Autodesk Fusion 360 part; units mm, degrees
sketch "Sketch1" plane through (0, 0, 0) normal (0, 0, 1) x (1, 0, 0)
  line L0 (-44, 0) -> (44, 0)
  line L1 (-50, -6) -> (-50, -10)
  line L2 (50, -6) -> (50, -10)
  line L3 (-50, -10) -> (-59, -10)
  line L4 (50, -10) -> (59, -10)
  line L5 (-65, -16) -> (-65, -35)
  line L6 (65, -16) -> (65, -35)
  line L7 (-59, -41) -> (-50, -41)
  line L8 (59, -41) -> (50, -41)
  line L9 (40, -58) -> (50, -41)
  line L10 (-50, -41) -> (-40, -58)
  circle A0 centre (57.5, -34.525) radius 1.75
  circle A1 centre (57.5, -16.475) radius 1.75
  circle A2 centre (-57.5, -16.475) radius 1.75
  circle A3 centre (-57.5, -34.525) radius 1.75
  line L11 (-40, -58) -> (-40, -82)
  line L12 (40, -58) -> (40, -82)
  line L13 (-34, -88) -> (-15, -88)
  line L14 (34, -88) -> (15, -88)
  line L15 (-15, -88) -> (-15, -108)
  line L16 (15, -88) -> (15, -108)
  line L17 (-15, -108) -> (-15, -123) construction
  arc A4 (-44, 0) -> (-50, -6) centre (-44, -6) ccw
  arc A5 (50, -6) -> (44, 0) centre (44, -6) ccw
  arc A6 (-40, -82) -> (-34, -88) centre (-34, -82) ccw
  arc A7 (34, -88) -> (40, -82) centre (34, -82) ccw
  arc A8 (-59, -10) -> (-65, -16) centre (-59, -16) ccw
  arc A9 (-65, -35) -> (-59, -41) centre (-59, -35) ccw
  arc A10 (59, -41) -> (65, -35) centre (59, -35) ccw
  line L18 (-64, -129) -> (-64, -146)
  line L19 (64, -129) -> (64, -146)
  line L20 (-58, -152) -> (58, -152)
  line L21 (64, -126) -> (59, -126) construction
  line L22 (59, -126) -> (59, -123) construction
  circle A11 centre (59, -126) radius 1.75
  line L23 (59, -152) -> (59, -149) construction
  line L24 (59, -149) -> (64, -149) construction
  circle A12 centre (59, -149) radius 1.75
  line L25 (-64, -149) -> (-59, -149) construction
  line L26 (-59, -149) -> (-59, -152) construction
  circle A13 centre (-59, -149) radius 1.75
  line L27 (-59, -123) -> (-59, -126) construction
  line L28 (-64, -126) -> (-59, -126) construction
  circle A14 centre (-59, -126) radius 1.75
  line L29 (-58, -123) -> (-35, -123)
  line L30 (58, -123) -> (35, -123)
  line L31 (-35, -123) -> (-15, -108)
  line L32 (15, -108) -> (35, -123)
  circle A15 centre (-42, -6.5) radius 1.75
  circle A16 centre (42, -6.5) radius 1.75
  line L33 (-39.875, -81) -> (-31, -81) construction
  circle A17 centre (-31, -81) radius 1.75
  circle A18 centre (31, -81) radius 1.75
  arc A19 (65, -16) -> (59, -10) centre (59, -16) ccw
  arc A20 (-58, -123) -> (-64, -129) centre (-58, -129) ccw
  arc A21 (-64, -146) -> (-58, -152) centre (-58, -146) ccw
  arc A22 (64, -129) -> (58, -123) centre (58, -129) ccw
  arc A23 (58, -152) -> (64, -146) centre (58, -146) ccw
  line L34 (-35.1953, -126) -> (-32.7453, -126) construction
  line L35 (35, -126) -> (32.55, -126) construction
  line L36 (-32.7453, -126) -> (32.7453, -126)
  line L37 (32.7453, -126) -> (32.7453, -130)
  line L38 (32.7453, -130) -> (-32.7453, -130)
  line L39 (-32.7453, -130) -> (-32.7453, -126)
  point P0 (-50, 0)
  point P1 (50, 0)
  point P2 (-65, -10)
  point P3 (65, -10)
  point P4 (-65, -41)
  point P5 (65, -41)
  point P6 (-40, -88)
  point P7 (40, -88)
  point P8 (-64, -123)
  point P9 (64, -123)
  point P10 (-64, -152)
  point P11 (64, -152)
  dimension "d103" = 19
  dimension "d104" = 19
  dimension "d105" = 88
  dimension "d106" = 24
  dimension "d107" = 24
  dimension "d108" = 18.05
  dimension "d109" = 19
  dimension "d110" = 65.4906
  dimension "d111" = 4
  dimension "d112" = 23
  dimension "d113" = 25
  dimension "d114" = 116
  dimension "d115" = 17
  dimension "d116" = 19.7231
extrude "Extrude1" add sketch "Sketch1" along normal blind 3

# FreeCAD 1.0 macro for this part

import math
import FreeCAD as App
import Part
import Sketcher
Q = App.Units.Quantity

doc = App.newDocument("Part")
body = doc.addObject("PartDesign::Body", "Body")

sketch1 = body.newObject("Sketcher::SketchObject", "Sketch")
sketch1.AttachmentSupport = (doc.getObject("XY_Plane"), [""])
sketch1.MapMode = "FlatFace"
sketch1.addGeometry(Part.LineSegment(App.Vector(44, 0, 0), App.Vector(-44, 0, 0)), False)
sketch1.addGeometry(Part.ArcOfCircle(Part.Circle(App.Vector(-44, -6, 0), App.Vector(0, 0, 1), 6), math.radians(90), math.radians(180)), False)
sketch1.addGeometry(Part.LineSegment(App.Vector(-50, -6, 0), App.Vector(-50, -10, 0)), False)
sketch1.addGeometry(Part.LineSegment(App.Vector(-50, -10, 0), App.Vector(-59, -10, 0)), False)
sketch1.addGeometry(Part.ArcOfCircle(Part.Circle(App.Vector(-59, -16, 0), App.Vector(0, 0, 1), 6), math.radians(90), math.radians(180)), False)
sketch1.addGeometry(Part.LineSegment(App.Vector(-65, -16, 0), App.Vector(-65, -35, 0)), False)
sketch1.addGeometry(Part.ArcOfCircle(Part.Circle(App.Vector(-59, -35, 0), App.Vector(0, 0, 1), 6), math.radians(180), math.radians(270)), False)
sketch1.addGeometry(Part.LineSegment(App.Vector(-59, -41, 0), App.Vector(-50, -41, 0)), False)
sketch1.addGeometry(Part.LineSegment(App.Vector(-50, -41, 0), App.Vector(-40, -58, 0)), False)
sketch1.addGeometry(Part.LineSegment(App.Vector(-40, -58, 0), App.Vector(-40, -82, 0)), False)
sketch1.addGeometry(Part.ArcOfCircle(Part.Circle(App.Vector(-34, -82, 0), App.Vector(0, 0, 1), 6), math.radians(180), math.radians(270)), False)
sketch1.addGeometry(Part.LineSegment(App.Vector(-34, -88, 0), App.Vector(-15, -88, 0)), False)
sketch1.addGeometry(Part.LineSegment(App.Vector(-15, -88, 0), App.Vector(-15, -108, 0)), False)
sketch1.addGeometry(Part.LineSegment(App.Vector(-15, -108, 0), App.Vector(-35, -123, 0)), False)
sketch1.addGeometry(Part.LineSegment(App.Vector(-35, -123, 0), App.Vector(-58, -123, 0)), False)
sketch1.addGeometry(Part.ArcOfCircle(Part.Circle(App.Vector(-58, -129, 0), App.Vector(0, 0, 1), 6), math.radians(90), math.radians(180)), False)
sketch1.addGeometry(Part.LineSegment(App.Vector(-64, -129, 0), App.Vector(-64, -146, 0)), False)
sketch1.addGeometry(Part.ArcOfCircle(Part.Circle(App.Vector(-58, -146, 0), App.Vector(0, 0, 1), 6), math.radians(180), math.radians(270)), False)
sketch1.addGeometry(Part.LineSegment(App.Vector(-58, -152, 0), App.Vector(58, -152, 0)), False)
sketch1.addGeometry(Part.ArcOfCircle(Part.Circle(App.Vector(58, -146, 0), App.Vector(0, 0, 1), 6), math.radians(-90), math.radians(0)), False)
sketch1.addGeometry(Part.LineSegment(App.Vector(64, -146, 0), App.Vector(64, -129, 0)), False)
sketch1.addGeometry(Part.ArcOfCircle(Part.Circle(App.Vector(58, -129, 0), App.Vector(0, 0, 1), 6), math.radians(0), math.radians(90)), False)
sketch1.addGeometry(Part.LineSegment(App.Vector(58, -123, 0), App.Vector(35, -123, 0)), False)
sketch1.addGeometry(Part.LineSegment(App.Vector(35, -123, 0), App.Vector(15, -108, 0)), False)
sketch1.addGeometry(Part.LineSegment(App.Vector(15, -108, 0), App.Vector(15, -88, 0)), False)
sketch1.addGeometry(Part.LineSegment(App.Vector(15, -88, 0), App.Vector(34, -88, 0)), False)
sketch1.addGeometry(Part.ArcOfCircle(Part.Circle(App.Vector(34, -82, 0), App.Vector(0, 0, 1), 6), math.radians(-90), math.radians(0)), False)
sketch1.addGeometry(Part.LineSegment(App.Vector(40, -82, 0), App.Vector(40, -58, 0)), False)
sketch1.addGeometry(Part.LineSegment(App.Vector(40, -58, 0), App.Vector(50, -41, 0)), False)
sketch1.addGeometry(Part.LineSegment(App.Vector(50, -41, 0), App.Vector(59, -41, 0)), False)
sketch1.addGeometry(Part.ArcOfCircle(Part.Circle(App.Vector(59, -35, 0), App.Vector(0, 0, 1), 6), math.radians(-90), math.radians(0)), False)
sketch1.addGeometry(Part.LineSegment(App.Vector(65, -35, 0), App.Vector(65, -16, 0)), False)
sketch1.addGeometry(Part.ArcOfCircle(Part.Circle(App.Vector(59, -16, 0), App.Vector(0, 0, 1), 6), math.radians(0), math.radians(90)), False)
sketch1.addGeometry(Part.LineSegment(App.Vector(59, -10, 0), App.Vector(50, -10, 0)), False)
sketch1.addGeometry(Part.LineSegment(App.Vector(50, -10, 0), App.Vector(50, -6, 0)), False)
sketch1.addGeometry(Part.ArcOfCircle(Part.Circle(App.Vector(44, -6, 0), App.Vector(0, 0, 1), 6), math.radians(0), math.radians(90)), False)
sketch1.addGeometry(Part.Circle(App.Vector(-59, -149, 0), App.Vector(0, 0, 1), 1.8), False)
sketch1.addGeometry(Part.Circle(App.Vector(-59, -126, 0), App.Vector(0, 0, 1), 1.8), False)
sketch1.addGeometry(Part.Circle(App.Vector(-31, -81, 0), App.Vector(0, 0, 1), 1.8), False)
sketch1.addGeometry(Part.LineSegment(App.Vector(-32.7, -130, 0), App.Vector(-32.7, -126, 0)), False)
sketch1.addGeometry(Part.LineSegment(App.Vector(-32.7, -126, 0), App.Vector(32.7, -126, 0)), False)
sketch1.addGeometry(Part.LineSegment(App.Vector(32.7, -126, 0), App.Vector(32.7, -130, 0)), False)
sketch1.addGeometry(Part.LineSegment(App.Vector(32.7, -130, 0), App.Vector(-32.7, -130, 0)), False)
sketch1.addGeometry(Part.Circle(App.Vector(59, -149, 0), App.Vector(0, 0, 1), 1.8), False)
sketch1.addGeometry(Part.Circle(App.Vector(59, -126, 0), App.Vector(0, 0, 1), 1.8), False)
sketch1.addGeometry(Part.Circle(App.Vector(31, -81, 0), App.Vector(0, 0, 1), 1.8), False)
sketch1.addGeometry(Part.Circle(App.Vector(-57.5, -34.5, 0), App.Vector(0, 0, 1), 1.8), False)
sketch1.addGeometry(Part.Circle(App.Vector(-57.5, -16.5, 0), App.Vector(0, 0, 1), 1.8), False)
sketch1.addGeometry(Part.Circle(App.Vector(-42, -6.5, 0), App.Vector(0, 0, 1), 1.8), False)
sketch1.addGeometry(Part.Circle(App.Vector(57.5, -34.5, 0), App.Vector(0, 0, 1), 1.8), False)
sketch1.addGeometry(Part.Circle(App.Vector(42, -6.5, 0), App.Vector(0, 0, 1), 1.8), False)
sketch1.addGeometry(Part.Circle(App.Vector(57.5, -16.5, 0), App.Vector(0, 0, 1), 1.8), False)
sketch1.addConstraint(Sketcher.Constraint("Tangent", 0, 2, 1, 1))
sketch1.addConstraint(Sketcher.Constraint("Tangent", 1, 2, 2, 1))
sketch1.addConstraint(Sketcher.Constraint("Coincident", 2, 2, 3, 1))
sketch1.addConstraint(Sketcher.Constraint("Tangent", 3, 2, 4, 1))
sketch1.addConstraint(Sketcher.Constraint("Tangent", 4, 2, 5, 1))
sketch1.addConstraint(Sketcher.Constraint("Tangent", 5, 2, 6, 1))
sketch1.addConstraint(Sketcher.Constraint("Tangent", 6, 2, 7, 1))
sketch1.addConstraint(Sketcher.Constraint("Coincident", 7, 2, 8, 1))
sketch1.addConstraint(Sketcher.Constraint("Coincident", 8, 2, 9, 1))
sketch1.addConstraint(Sketcher.Constraint("Tangent", 9, 2, 10, 1))
sketch1.addConstraint(Sketcher.Constraint("Tangent", 10, 2, 11, 1))
sketch1.addConstraint(Sketcher.Constraint("Coincident", 11, 2, 12, 1))
sketch1.addConstraint(Sketcher.Constraint("Coincident", 12, 2, 13, 1))
sketch1.addConstraint(Sketcher.Constraint("Coincident", 13, 2, 14, 1))
sketch1.addConstraint(Sketcher.Constraint("Tangent", 14, 2, 15, 1))
sketch1.addConstraint(Sketcher.Constraint("Tangent", 15, 2, 16, 1))
sketch1.addConstraint(Sketcher.Constraint("Tangent", 16, 2, 17, 1))
sketch1.addConstraint(Sketcher.Constraint("Tangent", 17, 2, 18, 1))
sketch1.addConstraint(Sketcher.Constraint("Tangent", 18, 2, 19, 1))
sketch1.addConstraint(Sketcher.Constraint("Tangent", 19, 2, 20, 1))
sketch1.addConstraint(Sketcher.Constraint("Tangent", 20, 2, 21, 1))
sketch1.addConstraint(Sketcher.Constraint("Tangent", 21, 2, 22, 1))
sketch1.addConstraint(Sketcher.Constraint("Coincident", 22, 2, 23, 1))
sketch1.addConstraint(Sketcher.Constraint("Coincident", 23, 2, 24, 1))
sketch1.addConstraint(Sketcher.Constraint("Coincident", 24, 2, 25, 1))
sketch1.addConstraint(Sketcher.Constraint("Tangent", 25, 2, 26, 1))
sketch1.addConstraint(Sketcher.Constraint("Tangent", 26, 2, 27, 1))
sketch1.addConstraint(Sketcher.Constraint("Coincident", 27, 2, 28, 1))
sketch1.addConstraint(Sketcher.Constraint("Coincident", 28, 2, 29, 1))
sketch1.addConstraint(Sketcher.Constraint("Tangent", 29, 2, 30, 1))
sketch1.addConstraint(Sketcher.Constraint("Tangent", 30, 2, 31, 1))
sketch1.addConstraint(Sketcher.Constraint("Tangent", 31, 2, 32, 1))
sketch1.addConstraint(Sketcher.Constraint("Tangent", 32, 2, 33, 1))
sketch1.addConstraint(Sketcher.Constraint("Coincident", 33, 2, 34, 1))
sketch1.addConstraint(Sketcher.Constraint("Tangent", 34, 2, 35, 1))
sketch1.addConstraint(Sketcher.Constraint("Tangent", 35, 2, 0, 1))
sketch1.addConstraint(Sketcher.Constraint("Coincident", 39, 2, 40, 1))
sketch1.addConstraint(Sketcher.Constraint("Coincident", 40, 2, 41, 1))
sketch1.addConstraint(Sketcher.Constraint("Coincident", 41, 2, 42, 1))
sketch1.addConstraint(Sketcher.Constraint("Coincident", 42, 2, 39, 1))
sketch1.addConstraint(Sketcher.Constraint("Horizontal", 0))
sketch1.addConstraint(Sketcher.Constraint("Vertical", 2))
sketch1.addConstraint(Sketcher.Constraint("Horizontal", 3))
sketch1.addConstraint(Sketcher.Constraint("Vertical", 5))
sketch1.addConstraint(Sketcher.Constraint("Horizontal", 7))
sketch1.addConstraint(Sketcher.Constraint("Vertical", 9))
sketch1.addConstraint(Sketcher.Constraint("Horizontal", 11))
sketch1.addConstraint(Sketcher.Constraint("Vertical", 12))
sketch1.addConstraint(Sketcher.Constraint("Horizontal", 14))
sketch1.addConstraint(Sketcher.Constraint("Vertical", 16))
sketch1.addConstraint(Sketcher.Constraint("Horizontal", 18))
sketch1.addConstraint(Sketcher.Constraint("Vertical", 20))
sketch1.addConstraint(Sketcher.Constraint("Horizontal", 22))
sketch1.addConstraint(Sketcher.Constraint("Vertical", 24))
sketch1.addConstraint(Sketcher.Constraint("Horizontal", 25))
sketch1.addConstraint(Sketcher.Constraint("Vertical", 27))
sketch1.addConstraint(Sketcher.Constraint("Horizontal", 29))
sketch1.addConstraint(Sketcher.Constraint("Vertical", 31))
sketch1.addConstraint(Sketcher.Constraint("Horizontal", 33))
sketch1.addConstraint(Sketcher.Constraint("Vertical", 34))
sketch1.addConstraint(Sketcher.Constraint("Vertical", 39))
sketch1.addConstraint(Sketcher.Constraint("Horizontal", 40))
sketch1.addConstraint(Sketcher.Constraint("Vertical", 41))
sketch1.addConstraint(Sketcher.Constraint("Horizontal", 42))
sketch1.addConstraint(Sketcher.Constraint("Equal", 1, 4))
sketch1.addConstraint(Sketcher.Constraint("Equal", 4, 6))
sketch1.addConstraint(Sketcher.Constraint("Equal", 6, 10))
sketch1.addConstraint(Sketcher.Constraint("Equal", 10, 15))
sketch1.addConstraint(Sketcher.Constraint("Equal", 15, 17))
sketch1.addConstraint(Sketcher.Constraint("Equal", 17, 19))
sketch1.addConstraint(Sketcher.Constraint("Equal", 19, 21))
sketch1.addConstraint(Sketcher.Constraint("Equal", 21, 26))
sketch1.addConstraint(Sketcher.Constraint("Equal", 26, 30))
sketch1.addConstraint(Sketcher.Constraint("Equal", 30, 32))
sketch1.addConstraint(Sketcher.Constraint("Equal", 32, 35))
sketch1.addConstraint(Sketcher.Constraint("Equal", 36, 37))
sketch1.addConstraint(Sketcher.Constraint("Equal", 37, 38))
sketch1.addConstraint(Sketcher.Constraint("Equal", 38, 43))
sketch1.addConstraint(Sketcher.Constraint("Equal", 43, 44))
sketch1.addConstraint(Sketcher.Constraint("Equal", 44, 45))
sketch1.addConstraint(Sketcher.Constraint("Equal", 45, 46))
sketch1.addConstraint(Sketcher.Constraint("Equal", 46, 47))
sketch1.addConstraint(Sketcher.Constraint("Equal", 47, 48))
sketch1.addConstraint(Sketcher.Constraint("Equal", 48, 49))
sketch1.addConstraint(Sketcher.Constraint("Equal", 49, 50))
sketch1.addConstraint(Sketcher.Constraint("Equal", 50, 51))
sketch1.addConstraint(Sketcher.Constraint("Symmetric", 0, 2, 35, 2, -1, 1))
sketch1.addConstraint(Sketcher.Constraint("Symmetric", 15, 3, 21, 3, -2))
sketch1.addConstraint(Sketcher.Constraint("Symmetric", 10, 3, 26, 3, -2))
sketch1.addConstraint(Sketcher.Constraint("Symmetric", 6, 3, 30, 3, -2))
sketch1.addConstraint(Sketcher.Constraint("Symmetric", 36, 3, 43, 3, -2))
sketch1.addConstraint(Sketcher.Constraint("Symmetric", 37, 3, 44, 3, -2))
sketch1.addConstraint(Sketcher.Constraint("Symmetric", 38, 3, 45, 3, -2))
sketch1.addConstraint(Sketcher.Constraint("Symmetric", 46, 3, 49, 3, -2))
sketch1.addConstraint(Sketcher.Constraint("Symmetric", 48, 3, 50, 3, -2))
sketch1.addConstraint(Sketcher.Constraint("Symmetric", 47, 3, 51, 3, -2))
sketch1.addConstraint(Sketcher.Constraint("Symmetric", 12, 2, 23, 2, -2))
sketch1.addConstraint(Sketcher.Constraint("Horizontal", 4, 3, 32, 3))
sketch1.addConstraint(Sketcher.Constraint("Horizontal", 8, 2, 27, 2))
sketch1.addConstraint(Sketcher.Constraint("Horizontal", 44, 3, 39, 2))
sketch1.addConstraint(Sketcher.Constraint("Vertical", 6, 3, 36, 3))
sketch1.addConstraint(Sketcher.Constraint("Vertical", 36, 3, 37, 3))
sketch1.addConstraint(Sketcher.Constraint("Vertical", 46, 3, 47, 3))
sketch1.addConstraint(Sketcher.Constraint("Vertical", 2, 2, 7, 2))
sketch1.addConstraint(Sketcher.Constraint("Vertical", 28, 2, 33, 2))
sketch1.addConstraint(Sketcher.Constraint("Equal", 14, 22))
sketch1.addConstraint(Sketcher.Constraint("Equal", 25, 5))
sketch1.addConstraint(Sketcher.Constraint("Equal", 34, 39))
sketch1.addConstraint(Sketcher.Constraint("DistanceX", 0, 2, 0, 1, Q("88 mm")))
sketch1.addConstraint(Sketcher.Constraint("DistanceX", 11, 1, 11, 2, Q("19 mm")))
sketch1.addConstraint(Sketcher.Constraint("DistanceX", 14, 2, 14, 1, Q("23 mm")))
sketch1.addConstraint(Sketcher.Constraint("DistanceX", 18, 1, 18, 2, Q("116 mm")))
sketch1.addConstraint(Sketcher.Constraint("DistanceY", 2, 2, 2, 1, Q("4 mm")))
sketch1.addConstraint(Sketcher.Constraint("DistanceY", 9, 2, 9, 1, Q("24 mm")))
sketch1.addConstraint(Sketcher.Constraint("DistanceY", 16, 2, 16, 1, Q("17 mm")))
sketch1.addConstraint(Sketcher.Constraint("Distance", 13, Q("25 mm")))
sketch1.addConstraint(Sketcher.Constraint("DistanceY", 10, 2, -1, 1, Q("88 mm")))
sketch1.addConstraint(Sketcher.Constraint("Radius", 1, Q("6 mm")))
sketch1.addConstraint(Sketcher.Constraint("Diameter", 36, Q("3.5 mm")))
sketch1.addConstraint(Sketcher.Constraint("DistanceX", 3, 2, 3, 1, Q("9 mm")))
sketch1.addConstraint(Sketcher.Constraint("DistanceY", 12, 2, 12, 1, Q("20 mm")))
sketch1.addConstraint(Sketcher.Constraint("Distance", 8, Q("19.723 mm")))
sketch1.addConstraint(Sketcher.Constraint("DistanceX", 40, 1, 40, 2, Q("65.4906 mm")))
sketch1.addConstraint(Sketcher.Constraint("DistanceY", 36, 3, -1, 1, Q("149 mm")))
sketch1.addConstraint(Sketcher.Constraint("DistanceY", 37, 3, -1, 1, Q("126 mm")))
sketch1.addConstraint(Sketcher.Constraint("DistanceX", 38, 3, -1, 1, Q("31 mm")))
sketch1.addConstraint(Sketcher.Constraint("DistanceY", 38, 3, -1, 1, Q("81 mm")))
sketch1.addConstraint(Sketcher.Constraint("DistanceX", 48, 3, -1, 1, Q("42 mm")))
sketch1.addConstraint(Sketcher.Constraint("DistanceX", 46, 3, -1, 1, Q("57.5 mm")))
sketch1.addConstraint(Sketcher.Constraint("DistanceY", 48, 3, -1, 1, Q("6.5 mm")))
sketch1.addConstraint(Sketcher.Constraint("DistanceY", 46, 3, -1, 1, Q("34.525 mm")))
sketch1.addConstraint(Sketcher.Constraint("DistanceY", 47, 3, -1, 1, Q("16.475 mm")))
sketch1.addConstraint(Sketcher.Constraint("DistanceX", 39, 2, -1, 1, Q("32.7453 mm")))
pad1 = body.newObject("PartDesign::Pad", "Pad")
pad1.Profile = sketch1
pad1.Length = 3

doc.recompute()
